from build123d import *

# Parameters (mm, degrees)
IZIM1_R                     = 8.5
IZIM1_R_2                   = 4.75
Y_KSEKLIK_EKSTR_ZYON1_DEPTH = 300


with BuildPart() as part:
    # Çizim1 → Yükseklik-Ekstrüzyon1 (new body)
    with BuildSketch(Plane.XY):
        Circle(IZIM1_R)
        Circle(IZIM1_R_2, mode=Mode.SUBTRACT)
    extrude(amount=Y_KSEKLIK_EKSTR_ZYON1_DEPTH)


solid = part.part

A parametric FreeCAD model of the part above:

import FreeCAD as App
import Part
import Sketcher
from FreeCAD import Vector

doc = App.newDocument("Part")
body = doc.addObject("PartDesign::Body", "Body")

# Sketch on XY plane
sketch1 = doc.addObject("Sketcher::SketchObject", "Sketch")
body.addObject(sketch1)
sketch1.AttachmentSupport = (doc.XY_Plane, [""])
sketch1.MapMode = "FlatFace"
sketch1.addGeometry([
    Part.Circle(Vector(0, 0, 0), Vector(0, 0, 1), 8.5),
    Part.Circle(Vector(0, 0, 0), Vector(0, 0, 1), 4.75),
], False)
sketch1.addConstraint([
    Sketcher.Constraint("Coincident", 0, 3, -1, 1),
    Sketcher.Constraint("Coincident", 1, 3, -1, 1),
    Sketcher.Constraint("Diameter", 0, 17.0),
    Sketcher.Constraint("Diameter", 1, 9.5),
])
pad1 = doc.addObject("PartDesign::Pad", "Pad")
body.addObject(pad1)
pad1.Profile = sketch1
pad1.Length = 300

doc.recompute()
